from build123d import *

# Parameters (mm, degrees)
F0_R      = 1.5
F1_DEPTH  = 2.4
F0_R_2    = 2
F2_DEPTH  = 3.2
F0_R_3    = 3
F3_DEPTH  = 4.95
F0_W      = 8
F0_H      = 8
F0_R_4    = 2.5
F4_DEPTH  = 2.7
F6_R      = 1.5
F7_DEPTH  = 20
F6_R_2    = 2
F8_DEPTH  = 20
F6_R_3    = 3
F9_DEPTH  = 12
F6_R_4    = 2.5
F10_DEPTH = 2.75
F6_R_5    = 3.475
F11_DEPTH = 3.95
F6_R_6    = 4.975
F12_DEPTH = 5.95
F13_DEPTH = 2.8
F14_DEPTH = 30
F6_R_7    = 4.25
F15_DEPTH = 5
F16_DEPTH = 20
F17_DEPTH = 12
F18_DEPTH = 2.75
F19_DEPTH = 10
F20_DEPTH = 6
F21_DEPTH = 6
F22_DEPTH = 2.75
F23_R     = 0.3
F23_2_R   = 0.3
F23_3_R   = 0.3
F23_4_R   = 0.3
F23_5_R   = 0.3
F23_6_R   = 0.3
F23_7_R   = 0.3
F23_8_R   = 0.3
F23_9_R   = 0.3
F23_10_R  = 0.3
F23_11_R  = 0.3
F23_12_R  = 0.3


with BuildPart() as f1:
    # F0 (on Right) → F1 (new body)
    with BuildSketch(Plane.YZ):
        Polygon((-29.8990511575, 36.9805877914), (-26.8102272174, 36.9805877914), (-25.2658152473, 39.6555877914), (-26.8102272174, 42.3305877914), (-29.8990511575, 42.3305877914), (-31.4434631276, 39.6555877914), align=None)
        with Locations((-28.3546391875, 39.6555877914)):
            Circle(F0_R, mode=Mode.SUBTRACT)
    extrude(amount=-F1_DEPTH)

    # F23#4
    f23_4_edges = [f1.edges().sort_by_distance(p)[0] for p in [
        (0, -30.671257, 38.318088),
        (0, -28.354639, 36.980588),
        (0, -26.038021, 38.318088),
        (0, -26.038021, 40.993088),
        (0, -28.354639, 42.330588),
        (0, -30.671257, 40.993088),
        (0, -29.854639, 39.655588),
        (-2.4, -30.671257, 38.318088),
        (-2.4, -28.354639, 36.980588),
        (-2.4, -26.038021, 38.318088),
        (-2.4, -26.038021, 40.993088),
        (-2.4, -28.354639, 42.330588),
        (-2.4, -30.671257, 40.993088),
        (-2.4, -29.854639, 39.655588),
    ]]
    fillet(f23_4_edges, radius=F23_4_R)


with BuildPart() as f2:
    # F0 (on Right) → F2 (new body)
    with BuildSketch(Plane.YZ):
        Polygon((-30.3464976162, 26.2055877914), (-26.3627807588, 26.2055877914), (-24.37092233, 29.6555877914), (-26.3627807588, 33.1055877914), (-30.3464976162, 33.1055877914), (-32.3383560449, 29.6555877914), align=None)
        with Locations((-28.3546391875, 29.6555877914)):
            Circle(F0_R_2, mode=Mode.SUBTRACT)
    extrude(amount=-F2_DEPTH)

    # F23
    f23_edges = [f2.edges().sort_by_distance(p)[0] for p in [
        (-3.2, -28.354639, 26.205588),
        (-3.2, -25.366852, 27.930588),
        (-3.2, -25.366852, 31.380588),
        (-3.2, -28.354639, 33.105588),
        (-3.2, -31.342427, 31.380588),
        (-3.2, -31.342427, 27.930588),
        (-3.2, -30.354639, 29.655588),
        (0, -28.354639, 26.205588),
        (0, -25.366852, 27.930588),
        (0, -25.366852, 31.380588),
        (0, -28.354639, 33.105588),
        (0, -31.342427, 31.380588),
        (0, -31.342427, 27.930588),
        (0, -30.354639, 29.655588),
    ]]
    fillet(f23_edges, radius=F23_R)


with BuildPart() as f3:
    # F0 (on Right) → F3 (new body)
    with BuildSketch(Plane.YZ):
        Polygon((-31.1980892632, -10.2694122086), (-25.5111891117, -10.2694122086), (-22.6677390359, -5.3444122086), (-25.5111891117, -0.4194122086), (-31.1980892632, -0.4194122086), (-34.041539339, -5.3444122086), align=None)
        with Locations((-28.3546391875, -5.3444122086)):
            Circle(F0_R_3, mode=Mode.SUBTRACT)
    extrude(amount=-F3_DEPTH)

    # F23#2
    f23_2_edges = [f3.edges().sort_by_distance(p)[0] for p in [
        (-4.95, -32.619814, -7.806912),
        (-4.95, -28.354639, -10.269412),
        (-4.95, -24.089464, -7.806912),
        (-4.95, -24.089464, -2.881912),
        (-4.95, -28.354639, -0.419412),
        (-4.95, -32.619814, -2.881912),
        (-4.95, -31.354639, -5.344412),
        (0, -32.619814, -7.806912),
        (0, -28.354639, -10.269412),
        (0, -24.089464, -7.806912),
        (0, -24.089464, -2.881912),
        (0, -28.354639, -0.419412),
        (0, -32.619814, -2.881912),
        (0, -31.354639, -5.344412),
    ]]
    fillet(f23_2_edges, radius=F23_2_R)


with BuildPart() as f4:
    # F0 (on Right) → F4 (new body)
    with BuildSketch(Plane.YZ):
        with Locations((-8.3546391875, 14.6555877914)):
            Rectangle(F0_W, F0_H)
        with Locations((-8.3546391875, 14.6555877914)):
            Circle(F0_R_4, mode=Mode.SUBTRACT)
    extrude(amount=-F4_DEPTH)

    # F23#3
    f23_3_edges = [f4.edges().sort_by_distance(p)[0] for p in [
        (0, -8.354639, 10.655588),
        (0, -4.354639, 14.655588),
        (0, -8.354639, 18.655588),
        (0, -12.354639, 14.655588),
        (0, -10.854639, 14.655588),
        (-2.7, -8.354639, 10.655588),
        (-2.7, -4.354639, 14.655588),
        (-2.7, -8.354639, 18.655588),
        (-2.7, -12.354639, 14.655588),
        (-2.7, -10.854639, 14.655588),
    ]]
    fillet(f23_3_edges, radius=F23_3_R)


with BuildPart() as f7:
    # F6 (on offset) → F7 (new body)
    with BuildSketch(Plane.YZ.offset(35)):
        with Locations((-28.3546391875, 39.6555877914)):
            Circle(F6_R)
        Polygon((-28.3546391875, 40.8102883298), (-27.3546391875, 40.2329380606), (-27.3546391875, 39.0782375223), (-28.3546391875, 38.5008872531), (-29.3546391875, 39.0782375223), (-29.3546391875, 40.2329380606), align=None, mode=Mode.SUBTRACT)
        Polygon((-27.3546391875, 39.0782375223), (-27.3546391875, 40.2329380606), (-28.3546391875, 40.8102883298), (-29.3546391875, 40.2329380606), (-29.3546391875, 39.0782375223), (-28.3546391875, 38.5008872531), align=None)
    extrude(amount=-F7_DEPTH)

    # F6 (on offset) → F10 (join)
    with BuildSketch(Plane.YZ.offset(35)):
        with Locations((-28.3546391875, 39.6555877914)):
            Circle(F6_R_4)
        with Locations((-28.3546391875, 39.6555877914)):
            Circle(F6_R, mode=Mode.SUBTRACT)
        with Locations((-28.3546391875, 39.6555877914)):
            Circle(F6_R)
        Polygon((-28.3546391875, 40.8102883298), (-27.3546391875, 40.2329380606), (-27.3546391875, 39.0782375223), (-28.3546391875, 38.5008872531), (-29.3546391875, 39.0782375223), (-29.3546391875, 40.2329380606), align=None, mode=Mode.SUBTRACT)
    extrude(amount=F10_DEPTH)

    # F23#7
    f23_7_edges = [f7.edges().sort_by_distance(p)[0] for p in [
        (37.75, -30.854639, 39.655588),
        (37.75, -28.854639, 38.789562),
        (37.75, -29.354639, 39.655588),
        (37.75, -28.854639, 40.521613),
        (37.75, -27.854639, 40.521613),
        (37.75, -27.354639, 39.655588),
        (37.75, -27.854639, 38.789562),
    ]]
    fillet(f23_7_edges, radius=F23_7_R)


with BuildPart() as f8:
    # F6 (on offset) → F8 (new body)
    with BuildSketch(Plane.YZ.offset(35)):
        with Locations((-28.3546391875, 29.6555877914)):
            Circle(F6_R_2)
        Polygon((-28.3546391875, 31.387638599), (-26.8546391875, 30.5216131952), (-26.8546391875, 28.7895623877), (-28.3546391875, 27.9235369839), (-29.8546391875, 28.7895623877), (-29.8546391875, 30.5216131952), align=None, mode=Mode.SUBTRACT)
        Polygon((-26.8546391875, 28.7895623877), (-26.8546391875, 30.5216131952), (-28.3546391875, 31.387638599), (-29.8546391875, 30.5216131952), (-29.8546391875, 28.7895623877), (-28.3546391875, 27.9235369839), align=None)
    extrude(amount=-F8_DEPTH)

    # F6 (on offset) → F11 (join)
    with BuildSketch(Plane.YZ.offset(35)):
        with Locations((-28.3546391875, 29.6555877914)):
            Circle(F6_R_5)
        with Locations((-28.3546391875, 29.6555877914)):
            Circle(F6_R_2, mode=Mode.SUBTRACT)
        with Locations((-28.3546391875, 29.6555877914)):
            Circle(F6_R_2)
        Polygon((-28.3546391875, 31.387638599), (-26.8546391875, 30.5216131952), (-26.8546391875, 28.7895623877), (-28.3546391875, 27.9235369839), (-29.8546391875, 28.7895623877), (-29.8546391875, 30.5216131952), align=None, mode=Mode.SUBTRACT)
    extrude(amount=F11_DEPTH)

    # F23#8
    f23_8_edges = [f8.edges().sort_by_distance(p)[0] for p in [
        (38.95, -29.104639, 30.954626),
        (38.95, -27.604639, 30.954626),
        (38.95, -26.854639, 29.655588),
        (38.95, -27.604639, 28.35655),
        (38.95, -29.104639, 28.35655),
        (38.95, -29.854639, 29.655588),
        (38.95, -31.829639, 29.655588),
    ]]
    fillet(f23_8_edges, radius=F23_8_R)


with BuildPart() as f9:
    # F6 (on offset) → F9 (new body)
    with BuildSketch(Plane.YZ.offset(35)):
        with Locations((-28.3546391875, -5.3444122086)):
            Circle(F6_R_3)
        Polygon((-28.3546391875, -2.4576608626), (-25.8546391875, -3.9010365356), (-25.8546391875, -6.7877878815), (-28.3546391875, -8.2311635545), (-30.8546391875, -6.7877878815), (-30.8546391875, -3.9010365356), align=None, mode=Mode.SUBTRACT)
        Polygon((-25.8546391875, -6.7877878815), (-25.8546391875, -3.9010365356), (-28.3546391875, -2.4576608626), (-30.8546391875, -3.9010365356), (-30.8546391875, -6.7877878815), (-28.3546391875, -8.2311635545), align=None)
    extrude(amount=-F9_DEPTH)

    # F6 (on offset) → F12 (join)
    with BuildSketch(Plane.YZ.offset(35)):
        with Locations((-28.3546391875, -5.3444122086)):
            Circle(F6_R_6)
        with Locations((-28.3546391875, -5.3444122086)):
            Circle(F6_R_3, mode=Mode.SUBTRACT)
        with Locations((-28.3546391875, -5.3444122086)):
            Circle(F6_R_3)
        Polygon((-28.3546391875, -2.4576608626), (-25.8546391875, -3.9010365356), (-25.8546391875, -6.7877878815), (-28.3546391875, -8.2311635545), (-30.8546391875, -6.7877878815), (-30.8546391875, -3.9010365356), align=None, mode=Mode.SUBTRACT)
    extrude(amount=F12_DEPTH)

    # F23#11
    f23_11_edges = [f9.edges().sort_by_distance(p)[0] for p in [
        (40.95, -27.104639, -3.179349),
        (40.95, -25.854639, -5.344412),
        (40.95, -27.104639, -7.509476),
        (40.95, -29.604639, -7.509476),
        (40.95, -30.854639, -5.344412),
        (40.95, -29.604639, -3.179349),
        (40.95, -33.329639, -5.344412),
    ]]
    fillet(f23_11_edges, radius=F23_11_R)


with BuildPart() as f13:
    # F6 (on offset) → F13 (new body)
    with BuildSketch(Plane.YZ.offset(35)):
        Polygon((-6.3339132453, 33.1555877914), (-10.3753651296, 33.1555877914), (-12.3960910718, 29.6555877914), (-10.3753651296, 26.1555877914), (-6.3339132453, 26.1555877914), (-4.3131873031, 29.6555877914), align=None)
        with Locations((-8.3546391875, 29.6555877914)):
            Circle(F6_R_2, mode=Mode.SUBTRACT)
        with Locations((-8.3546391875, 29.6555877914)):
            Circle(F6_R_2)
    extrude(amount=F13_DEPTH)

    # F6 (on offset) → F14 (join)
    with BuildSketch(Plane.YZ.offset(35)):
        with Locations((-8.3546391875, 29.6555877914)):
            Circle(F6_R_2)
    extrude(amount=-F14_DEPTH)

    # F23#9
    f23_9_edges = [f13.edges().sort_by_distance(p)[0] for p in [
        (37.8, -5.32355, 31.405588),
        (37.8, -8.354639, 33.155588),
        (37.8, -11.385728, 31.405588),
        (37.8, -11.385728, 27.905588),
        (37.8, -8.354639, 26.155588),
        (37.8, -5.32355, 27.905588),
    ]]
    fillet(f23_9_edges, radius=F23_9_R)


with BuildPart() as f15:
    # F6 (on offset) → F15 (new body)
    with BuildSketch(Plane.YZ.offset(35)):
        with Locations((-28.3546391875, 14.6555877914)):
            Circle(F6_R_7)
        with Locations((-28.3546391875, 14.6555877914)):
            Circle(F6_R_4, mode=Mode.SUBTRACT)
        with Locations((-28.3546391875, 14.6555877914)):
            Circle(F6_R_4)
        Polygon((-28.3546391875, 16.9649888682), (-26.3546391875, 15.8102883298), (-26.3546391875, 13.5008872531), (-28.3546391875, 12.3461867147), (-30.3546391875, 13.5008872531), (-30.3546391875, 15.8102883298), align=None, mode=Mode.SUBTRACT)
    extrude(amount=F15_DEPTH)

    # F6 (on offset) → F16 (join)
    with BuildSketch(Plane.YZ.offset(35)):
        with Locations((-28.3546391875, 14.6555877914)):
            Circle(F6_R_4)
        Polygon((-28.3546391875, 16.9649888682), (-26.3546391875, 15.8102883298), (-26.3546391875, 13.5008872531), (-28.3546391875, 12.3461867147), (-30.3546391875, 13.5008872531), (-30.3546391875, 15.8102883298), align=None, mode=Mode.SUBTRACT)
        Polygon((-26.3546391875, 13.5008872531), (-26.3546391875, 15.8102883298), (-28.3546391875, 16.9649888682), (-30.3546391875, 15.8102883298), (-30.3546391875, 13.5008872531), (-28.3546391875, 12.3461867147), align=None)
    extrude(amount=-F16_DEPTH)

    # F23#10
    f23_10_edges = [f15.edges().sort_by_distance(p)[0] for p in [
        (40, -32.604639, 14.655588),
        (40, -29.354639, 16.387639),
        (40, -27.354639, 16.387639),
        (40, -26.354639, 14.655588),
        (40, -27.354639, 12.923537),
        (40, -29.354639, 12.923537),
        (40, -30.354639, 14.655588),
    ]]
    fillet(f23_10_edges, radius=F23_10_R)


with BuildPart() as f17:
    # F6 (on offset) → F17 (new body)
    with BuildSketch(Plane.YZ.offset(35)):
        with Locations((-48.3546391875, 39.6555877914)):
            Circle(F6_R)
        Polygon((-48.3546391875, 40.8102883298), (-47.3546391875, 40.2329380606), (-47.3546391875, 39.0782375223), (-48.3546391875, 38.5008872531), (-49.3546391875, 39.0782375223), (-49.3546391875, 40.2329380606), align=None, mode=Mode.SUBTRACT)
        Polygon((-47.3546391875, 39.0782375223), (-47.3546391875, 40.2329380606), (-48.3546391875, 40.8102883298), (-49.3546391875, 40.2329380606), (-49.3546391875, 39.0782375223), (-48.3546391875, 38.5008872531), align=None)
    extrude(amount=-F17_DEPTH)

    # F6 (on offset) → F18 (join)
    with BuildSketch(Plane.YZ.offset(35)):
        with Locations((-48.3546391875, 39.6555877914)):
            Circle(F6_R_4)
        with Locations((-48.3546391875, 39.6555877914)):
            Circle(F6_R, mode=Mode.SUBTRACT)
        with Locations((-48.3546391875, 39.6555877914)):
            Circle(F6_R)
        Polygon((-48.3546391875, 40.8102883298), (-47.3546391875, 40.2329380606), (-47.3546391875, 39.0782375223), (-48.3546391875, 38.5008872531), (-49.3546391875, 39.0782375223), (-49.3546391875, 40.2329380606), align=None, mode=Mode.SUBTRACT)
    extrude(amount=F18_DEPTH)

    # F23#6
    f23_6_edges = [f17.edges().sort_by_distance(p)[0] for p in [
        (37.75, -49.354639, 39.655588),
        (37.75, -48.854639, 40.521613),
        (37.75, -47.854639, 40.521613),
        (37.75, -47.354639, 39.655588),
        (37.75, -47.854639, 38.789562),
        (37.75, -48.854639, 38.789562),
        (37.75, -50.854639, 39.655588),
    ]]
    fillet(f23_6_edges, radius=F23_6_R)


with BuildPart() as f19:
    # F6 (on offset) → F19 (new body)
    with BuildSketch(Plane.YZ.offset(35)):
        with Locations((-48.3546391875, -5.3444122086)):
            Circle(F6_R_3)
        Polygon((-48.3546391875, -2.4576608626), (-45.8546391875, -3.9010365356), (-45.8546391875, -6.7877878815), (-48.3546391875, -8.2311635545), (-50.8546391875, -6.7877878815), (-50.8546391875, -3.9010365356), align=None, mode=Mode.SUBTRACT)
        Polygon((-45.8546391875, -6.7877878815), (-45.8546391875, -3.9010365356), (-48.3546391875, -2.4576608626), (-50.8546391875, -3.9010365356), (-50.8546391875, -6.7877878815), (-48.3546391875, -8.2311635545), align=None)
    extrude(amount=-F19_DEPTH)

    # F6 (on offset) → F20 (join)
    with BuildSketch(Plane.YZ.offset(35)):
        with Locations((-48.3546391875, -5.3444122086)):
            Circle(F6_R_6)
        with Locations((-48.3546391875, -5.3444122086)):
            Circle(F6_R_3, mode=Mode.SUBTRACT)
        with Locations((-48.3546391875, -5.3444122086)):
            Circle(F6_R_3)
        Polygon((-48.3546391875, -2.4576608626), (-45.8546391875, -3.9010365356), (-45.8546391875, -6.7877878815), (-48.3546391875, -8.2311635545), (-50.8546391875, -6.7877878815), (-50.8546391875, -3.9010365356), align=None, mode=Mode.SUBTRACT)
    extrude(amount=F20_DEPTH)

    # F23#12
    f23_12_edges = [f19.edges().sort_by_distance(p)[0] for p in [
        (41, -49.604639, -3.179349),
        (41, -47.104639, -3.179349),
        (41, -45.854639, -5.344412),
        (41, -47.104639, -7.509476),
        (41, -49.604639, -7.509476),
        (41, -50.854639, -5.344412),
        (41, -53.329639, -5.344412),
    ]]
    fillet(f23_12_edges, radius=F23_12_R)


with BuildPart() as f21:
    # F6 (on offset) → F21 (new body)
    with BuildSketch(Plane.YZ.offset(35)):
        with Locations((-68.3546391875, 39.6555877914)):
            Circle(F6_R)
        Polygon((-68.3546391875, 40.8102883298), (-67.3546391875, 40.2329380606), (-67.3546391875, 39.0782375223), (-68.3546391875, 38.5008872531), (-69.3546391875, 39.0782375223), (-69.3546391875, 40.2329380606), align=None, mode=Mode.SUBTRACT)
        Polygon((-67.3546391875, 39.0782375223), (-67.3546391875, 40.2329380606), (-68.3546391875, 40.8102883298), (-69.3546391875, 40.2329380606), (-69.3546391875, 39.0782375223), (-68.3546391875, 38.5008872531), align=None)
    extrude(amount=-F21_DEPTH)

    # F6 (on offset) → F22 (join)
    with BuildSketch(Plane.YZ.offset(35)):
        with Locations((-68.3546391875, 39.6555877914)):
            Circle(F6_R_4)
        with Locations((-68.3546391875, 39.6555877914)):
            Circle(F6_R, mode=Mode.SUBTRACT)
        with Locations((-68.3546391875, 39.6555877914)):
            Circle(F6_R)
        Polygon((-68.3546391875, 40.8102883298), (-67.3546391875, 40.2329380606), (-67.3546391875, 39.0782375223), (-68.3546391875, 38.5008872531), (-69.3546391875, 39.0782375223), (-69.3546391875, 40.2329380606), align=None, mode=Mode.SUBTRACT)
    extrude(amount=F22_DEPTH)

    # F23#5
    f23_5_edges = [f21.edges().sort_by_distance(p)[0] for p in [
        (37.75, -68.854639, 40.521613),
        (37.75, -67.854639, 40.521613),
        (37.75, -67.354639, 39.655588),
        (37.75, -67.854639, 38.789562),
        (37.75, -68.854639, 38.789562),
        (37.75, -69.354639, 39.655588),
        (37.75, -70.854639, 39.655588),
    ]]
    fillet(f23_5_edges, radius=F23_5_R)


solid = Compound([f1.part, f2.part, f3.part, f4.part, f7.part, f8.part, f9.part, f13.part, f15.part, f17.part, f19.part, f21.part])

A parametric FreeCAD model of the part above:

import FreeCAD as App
import Part
import Sketcher

V = App.Vector
Q = App.Units.Quantity


def edges_at(feature, points):
    """Names of the edges that pass closest to the given points."""
    edges = feature.Shape.Edges
    near = lambda p: min(range(len(edges)), key=lambda i: edges[i].distToShape(Part.Vertex(*p))[0])
    return sorted({f"Edge{near(p) + 1}" for p in points})

doc = App.newDocument("Part")
body = doc.addObject("PartDesign::Body", "Body")

sketch1 = body.newObject("Sketcher::SketchObject", "Sketch")
sketch1.AttachmentSupport = (doc.getObject("YZ_Plane"), [""])
sketch1.MapMode = "FlatFace"
sketch1.addGeometry([
    Part.LineSegment(V(-29.9, 37, 0), V(-26.8, 37, 0)),
    Part.LineSegment(V(-26.8, 37, 0), V(-25.3, 39.7, 0)),
    Part.LineSegment(V(-25.3, 39.7, 0), V(-26.8, 42.3, 0)),
    Part.LineSegment(V(-26.8, 42.3, 0), V(-29.9, 42.3, 0)),
    Part.LineSegment(V(-29.9, 42.3, 0), V(-31.4, 39.7, 0)),
    Part.LineSegment(V(-31.4, 39.7, 0), V(-29.9, 37, 0)),
    Part.Circle(V(-28.4, 39.7, 0), V(0, 0, 1), 1.5),
], False)
sketch1.addConstraint([
    Sketcher.Constraint("Coincident", 0, 2, 1, 1),
    Sketcher.Constraint("Coincident", 1, 2, 2, 1),
    Sketcher.Constraint("Coincident", 2, 2, 3, 1),
    Sketcher.Constraint("Coincident", 3, 2, 4, 1),
    Sketcher.Constraint("Coincident", 4, 2, 5, 1),
    Sketcher.Constraint("Coincident", 5, 2, 0, 1),
    Sketcher.Constraint("Horizontal", 0),
    Sketcher.Constraint("Horizontal", 3),
    Sketcher.Constraint("Parallel", 1, 4),
    Sketcher.Constraint("Parallel", 2, 5),
    Sketcher.Constraint("Horizontal", 6, 3, 1, 2),
    Sketcher.Constraint("Horizontal", 1, 2, 4, 2),
    Sketcher.Constraint("Vertical", 0, 2, 2, 2),
    Sketcher.Constraint("Vertical", 3, 2, 5, 2),
    Sketcher.Constraint("Diameter", 6, Q("3 mm")),
    Sketcher.Constraint("Angle", 1, Q("60 deg")),
    Sketcher.Constraint("DistanceY", 0, 2, 2, 2, Q("5.35 mm")),
    Sketcher.Constraint("DistanceX", 0, 1, 0, 2, Q("3.088824 mm")),
    Sketcher.Constraint("DistanceX", 6, 3, -1, 1, Q("28.354639 mm")),
    Sketcher.Constraint("DistanceX", 3, 2, -1, 1, Q("29.899051 mm")),
    Sketcher.Constraint("DistanceY", -1, 1, 6, 3, Q("39.655588 mm")),
])
pad1 = body.newObject("PartDesign::Pad", "Pad")
pad1.Profile = sketch1
pad1.Length = 2.4
pad1.Reversed = True
doc.recompute()

fillet = body.newObject("PartDesign::Fillet", "Fillet")
fillet.Base = (pad1, edges_at(pad1, [
    (0, -30.671, 38.318),
    (0, -28.355, 36.981),
    (0, -26.038, 38.318),
    (0, -26.038, 40.993),
    (0, -28.355, 42.331),
    (0, -30.671, 40.993),
    (0, -29.855, 39.656),
    (-2.4, -30.671, 38.318),
    (-2.4, -28.355, 36.981),
    (-2.4, -26.038, 38.318),
    (-2.4, -26.038, 40.993),
    (-2.4, -28.355, 42.331),
    (-2.4, -30.671, 40.993),
    (-2.4, -29.855, 39.656),
]))
fillet.Radius = 0.3
body2 = doc.addObject("PartDesign::Body", "Body001")

sketch2 = body2.newObject("Sketcher::SketchObject", "Sketch001")
sketch2.AttachmentSupport = (doc.getObject("YZ_Plane001"), [""])
sketch2.MapMode = "FlatFace"
sketch2.addGeometry([
    Part.LineSegment(V(-30.3, 26.2, 0), V(-26.4, 26.2, 0)),
    Part.LineSegment(V(-26.4, 26.2, 0), V(-24.4, 29.7, 0)),
    Part.LineSegment(V(-24.4, 29.7, 0), V(-26.4, 33.1, 0)),
    Part.LineSegment(V(-26.4, 33.1, 0), V(-30.3, 33.1, 0)),
    Part.LineSegment(V(-30.3, 33.1, 0), V(-32.3, 29.7, 0)),
    Part.LineSegment(V(-32.3, 29.7, 0), V(-30.3, 26.2, 0)),
    Part.Circle(V(-28.4, 29.7, 0), V(0, 0, 1), 2),
], False)
sketch2.addConstraint([
    Sketcher.Constraint("Coincident", 0, 2, 1, 1),
    Sketcher.Constraint("Coincident", 1, 2, 2, 1),
    Sketcher.Constraint("Coincident", 2, 2, 3, 1),
    Sketcher.Constraint("Coincident", 3, 2, 4, 1),
    Sketcher.Constraint("Coincident", 4, 2, 5, 1),
    Sketcher.Constraint("Coincident", 5, 2, 0, 1),
    Sketcher.Constraint("Horizontal", 0),
    Sketcher.Constraint("Horizontal", 3),
    Sketcher.Constraint("Parallel", 1, 4),
    Sketcher.Constraint("Parallel", 2, 5),
    Sketcher.Constraint("Horizontal", 6, 3, 1, 2),
    Sketcher.Constraint("Horizontal", 1, 2, 4, 2),
    Sketcher.Constraint("Vertical", 0, 2, 2, 2),
    Sketcher.Constraint("Vertical", 3, 2, 5, 2),
    Sketcher.Constraint("Diameter", 6, Q("4 mm")),
    Sketcher.Constraint("Angle", 1, Q("60 deg")),
    Sketcher.Constraint("DistanceY", 0, 2, 2, 2, Q("6.9 mm")),
    Sketcher.Constraint("DistanceX", 0, 1, 0, 2, Q("3.983717 mm")),
    Sketcher.Constraint("DistanceX", 6, 3, -1, 1, Q("28.354639 mm")),
    Sketcher.Constraint("DistanceX", 0, 2, -1, 1, Q("26.362781 mm")),
    Sketcher.Constraint("DistanceY", -1, 1, 6, 3, Q("29.655588 mm")),
])
pad2 = body2.newObject("PartDesign::Pad", "Pad001")
pad2.Profile = sketch2
pad2.Length = 3.2
pad2.Reversed = True
doc.recompute()

fillet2 = body2.newObject("PartDesign::Fillet", "Fillet001")
fillet2.Base = (pad2, edges_at(pad2, [
    (-3.2, -28.355, 26.206),
    (-3.2, -25.367, 27.931),
    (-3.2, -25.367, 31.381),
    (-3.2, -28.355, 33.106),
    (-3.2, -31.342, 31.381),
    (-3.2, -31.342, 27.931),
    (-3.2, -30.355, 29.656),
    (0, -28.355, 26.206),
    (0, -25.367, 27.931),
    (0, -25.367, 31.381),
    (0, -28.355, 33.106),
    (0, -31.342, 31.381),
    (0, -31.342, 27.931),
    (0, -30.355, 29.656),
]))
fillet2.Radius = 0.3
body3 = doc.addObject("PartDesign::Body", "Body002")

sketch3 = body3.newObject("Sketcher::SketchObject", "Sketch002")
sketch3.AttachmentSupport = (doc.getObject("YZ_Plane002"), [""])
sketch3.MapMode = "FlatFace"
sketch3.addGeometry([
    Part.LineSegment(V(-31.2, -10.3, 0), V(-25.5, -10.3, 0)),
    Part.LineSegment(V(-25.5, -10.3, 0), V(-22.7, -5.3, 0)),
    Part.LineSegment(V(-22.7, -5.3, 0), V(-25.5, -0.4, 0)),
    Part.LineSegment(V(-25.5, -0.4, 0), V(-31.2, -0.4, 0)),
    Part.LineSegment(V(-31.2, -0.4, 0), V(-34, -5.3, 0)),
    Part.LineSegment(V(-34, -5.3, 0), V(-31.2, -10.3, 0)),
    Part.Circle(V(-28.4, -5.3, 0), V(0, 0, 1), 3),
], False)
sketch3.addConstraint([
    Sketcher.Constraint("Coincident", 0, 2, 1, 1),
    Sketcher.Constraint("Coincident", 1, 2, 2, 1),
    Sketcher.Constraint("Coincident", 2, 2, 3, 1),
    Sketcher.Constraint("Coincident", 3, 2, 4, 1),
    Sketcher.Constraint("Coincident", 4, 2, 5, 1),
    Sketcher.Constraint("Coincident", 5, 2, 0, 1),
    Sketcher.Constraint("Horizontal", 0),
    Sketcher.Constraint("Horizontal", 3),
    Sketcher.Constraint("Parallel", 1, 4),
    Sketcher.Constraint("Parallel", 2, 5),
    Sketcher.Constraint("Horizontal", 6, 3, 1, 2),
    Sketcher.Constraint("Horizontal", 1, 2, 4, 2),
    Sketcher.Constraint("Vertical", 0, 2, 2, 2),
    Sketcher.Constraint("Vertical", 3, 2, 5, 2),
    Sketcher.Constraint("Diameter", 6, Q("6 mm")),
    Sketcher.Constraint("Angle", 1, Q("60 deg")),
    Sketcher.Constraint("DistanceY", 0, 2, 2, 2, Q("9.85 mm")),
    Sketcher.Constraint("DistanceX", 0, 1, 0, 2, Q("5.6869 mm")),
    Sketcher.Constraint("DistanceX", 6, 3, 1, 2, Q("5.6869 mm")),
    Sketcher.Constraint("DistanceX", 6, 3, -1, 1, Q("28.354639 mm")),
    Sketcher.Constraint("DistanceY", 6, 3, -1, 1, Q("5.344412 mm")),
])
pad3 = body3.newObject("PartDesign::Pad", "Pad002")
pad3.Profile = sketch3
pad3.Length = 4.95
pad3.Reversed = True
doc.recompute()

fillet3 = body3.newObject("PartDesign::Fillet", "Fillet002")
fillet3.Base = (pad3, edges_at(pad3, [
    (-4.95, -32.62, -7.807),
    (-4.95, -28.355, -10.269),
    (-4.95, -24.089, -7.807),
    (-4.95, -24.089, -2.882),
    (-4.95, -28.355, -0.419),
    (-4.95, -32.62, -2.882),
    (-4.95, -31.355, -5.344),
    (0, -32.62, -7.807),
    (0, -28.355, -10.269),
    (0, -24.089, -7.807),
    (0, -24.089, -2.882),
    (0, -28.355, -0.419),
    (0, -32.62, -2.882),
    (0, -31.355, -5.344),
]))
fillet3.Radius = 0.3
body4 = doc.addObject("PartDesign::Body", "Body003")

sketch4 = body4.newObject("Sketcher::SketchObject", "Sketch003")
sketch4.AttachmentSupport = (doc.getObject("YZ_Plane003"), [""])
sketch4.MapMode = "FlatFace"
sketch4.addGeometry([
    Part.LineSegment(V(-12.4, 18.7, 0), V(-12.4, 10.7, 0)),
    Part.LineSegment(V(-12.4, 10.7, 0), V(-4.4, 10.7, 0)),
    Part.LineSegment(V(-4.4, 10.7, 0), V(-4.4, 18.7, 0)),
    Part.LineSegment(V(-4.4, 18.7, 0), V(-12.4, 18.7, 0)),
    Part.Circle(V(-8.4, 14.7, 0), V(0, 0, 1), 2.5),
], False)
sketch4.addConstraint([
    Sketcher.Constraint("Coincident", 0, 2, 1, 1),
    Sketcher.Constraint("Coincident", 1, 2, 2, 1),
    Sketcher.Constraint("Coincident", 2, 2, 3, 1),
    Sketcher.Constraint("Coincident", 3, 2, 0, 1),
    Sketcher.Constraint("Vertical", 0),
    Sketcher.Constraint("Horizontal", 1),
    Sketcher.Constraint("Vertical", 2),
    Sketcher.Constraint("Horizontal", 3),
    Sketcher.Constraint("Equal", 3, 0),
    Sketcher.Constraint("Diameter", 4, Q("5 mm")),
    Sketcher.Constraint("DistanceX", 1, 1, 1, 2, Q("8 mm")),
    Sketcher.Constraint("DistanceX", 0, 2, 4, 3, Q("4 mm")),
    Sketcher.Constraint("DistanceY", 0, 2, 4, 3, Q("4 mm")),
    Sketcher.Constraint("DistanceX", 4, 3, -1, 1, Q("8.354639 mm")),
    Sketcher.Constraint("DistanceY", -1, 1, 4, 3, Q("14.655588 mm")),
])
pad4 = body4.newObject("PartDesign::Pad", "Pad003")
pad4.Profile = sketch4
pad4.Length = 2.7
pad4.Reversed = True
doc.recompute()

fillet4 = body4.newObject("PartDesign::Fillet", "Fillet003")
fillet4.Base = (pad4, edges_at(pad4, [
    (0, -8.355, 10.656),
    (0, -4.355, 14.656),
    (0, -8.355, 18.656),
    (0, -12.355, 14.656),
    (0, -10.855, 14.656),
    (-2.7, -8.355, 10.656),
    (-2.7, -4.355, 14.656),
    (-2.7, -8.355, 18.656),
    (-2.7, -12.355, 14.656),
    (-2.7, -10.855, 14.656),
]))
fillet4.Radius = 0.3
body5 = doc.addObject("PartDesign::Body", "Body004")

sketch5 = body5.newObject("Sketcher::SketchObject", "Sketch004")
sketch5.AttachmentSupport = (doc.getObject("YZ_Plane004"), [""])
sketch5.MapMode = "FlatFace"
sketch5.AttachmentOffset = App.Placement(V(0, 0, 35), App.Rotation())
sketch5.addGeometry(Part.Circle(V(-28.4, 39.7, 0), V(0, 0, 1), 1.5), False)
sketch5.addConstraint([
    Sketcher.Constraint("Diameter", 0, Q("3 mm")),
    Sketcher.Constraint("DistanceX", 0, 3, -1, 1, Q("28.354639 mm")),
    Sketcher.Constraint("DistanceY", -1, 1, 0, 3, Q("39.655588 mm")),
])
pad5 = body5.newObject("PartDesign::Pad", "Pad004")
pad5.Profile = sketch5
pad5.Length = 20
pad5.Reversed = True

sketch6 = body5.newObject("Sketcher::SketchObject", "Sketch005")
sketch6.AttachmentSupport = (doc.getObject("YZ_Plane004"), [""])
sketch6.MapMode = "FlatFace"
sketch6.AttachmentOffset = App.Placement(V(0, 0, 35), App.Rotation())
sketch6.addGeometry([
    Part.Circle(V(-28.4, 39.7, 0), V(0, 0, 1), 2.5),
    Part.LineSegment(V(-29.4, 40.2, 0), V(-28.4, 40.8, 0)),
    Part.LineSegment(V(-28.4, 40.8, 0), V(-27.4, 40.2, 0)),
    Part.LineSegment(V(-27.4, 40.2, 0), V(-27.4, 39.1, 0)),
    Part.LineSegment(V(-27.4, 39.1, 0), V(-28.4, 38.5, 0)),
    Part.LineSegment(V(-28.4, 38.5, 0), V(-29.4, 39.1, 0)),
    Part.LineSegment(V(-29.4, 39.1, 0), V(-29.4, 40.2, 0)),
], False)
sketch6.addConstraint([
    Sketcher.Constraint("Coincident", 1, 2, 2, 1),
    Sketcher.Constraint("Coincident", 2, 2, 3, 1),
    Sketcher.Constraint("Coincident", 3, 2, 4, 1),
    Sketcher.Constraint("Coincident", 4, 2, 5, 1),
    Sketcher.Constraint("Coincident", 5, 2, 6, 1),
    Sketcher.Constraint("Coincident", 6, 2, 1, 1),
    Sketcher.Constraint("Vertical", 3),
    Sketcher.Constraint("Vertical", 6),
    Sketcher.Constraint("Parallel", 1, 4),
    Sketcher.Constraint("Parallel", 2, 5),
    Sketcher.Constraint("Horizontal", 3, 2, 5, 2),
    Sketcher.Constraint("Horizontal", 2, 2, 6, 2),
    Sketcher.Constraint("Vertical", 0, 3, 1, 2),
    Sketcher.Constraint("Vertical", 1, 2, 4, 2),
    Sketcher.Constraint("Diameter", 0, Q("5 mm")),
    Sketcher.Constraint("Angle", 1, Q("30 deg")),
    Sketcher.Constraint("DistanceX", 1, 2, 2, 2, Q("1 mm")),
    Sketcher.Constraint("DistanceY", 3, 2, 3, 1, Q("1.154701 mm")),
    Sketcher.Constraint("DistanceY", 0, 3, 1, 2, Q("1.154701 mm")),
    Sketcher.Constraint("DistanceX", 0, 3, -1, 1, Q("28.354639 mm")),
    Sketcher.Constraint("DistanceY", -1, 1, 1, 2, Q("40.810288 mm")),
])
pad6 = body5.newObject("PartDesign::Pad", "Pad005")
pad6.Profile = sketch6
pad6.Length = 2.75
doc.recompute()

fillet5 = body5.newObject("PartDesign::Fillet", "Fillet004")
fillet5.Base = (pad6, edges_at(pad6, [
    (37.75, -30.855, 39.656),
    (37.75, -28.855, 38.79),
    (37.75, -29.355, 39.656),
    (37.75, -28.855, 40.522),
    (37.75, -27.855, 40.522),
    (37.75, -27.355, 39.656),
    (37.75, -27.855, 38.79),
]))
fillet5.Radius = 0.3
body6 = doc.addObject("PartDesign::Body", "Body005")

sketch7 = body6.newObject("Sketcher::SketchObject", "Sketch006")
sketch7.AttachmentSupport = (doc.getObject("YZ_Plane005"), [""])
sketch7.MapMode = "FlatFace"
sketch7.AttachmentOffset = App.Placement(V(0, 0, 35), App.Rotation())
sketch7.addGeometry(Part.Circle(V(-28.4, 29.7, 0), V(0, 0, 1), 2), False)
sketch7.addConstraint([
    Sketcher.Constraint("Diameter", 0, Q("4 mm")),
    Sketcher.Constraint("DistanceX", 0, 3, -1, 1, Q("28.354639 mm")),
    Sketcher.Constraint("DistanceY", -1, 1, 0, 3, Q("29.655588 mm")),
])
pad7 = body6.newObject("PartDesign::Pad", "Pad006")
pad7.Profile = sketch7
pad7.Length = 20
pad7.Reversed = True

sketch8 = body6.newObject("Sketcher::SketchObject", "Sketch007")
sketch8.AttachmentSupport = (doc.getObject("YZ_Plane005"), [""])
sketch8.MapMode = "FlatFace"
sketch8.AttachmentOffset = App.Placement(V(0, 0, 35), App.Rotation())
sketch8.addGeometry([
    Part.Circle(V(-28.4, 29.7, 0), V(0, 0, 1), 3.5),
    Part.LineSegment(V(-29.9, 30.5, 0), V(-28.4, 31.4, 0)),
    Part.LineSegment(V(-28.4, 31.4, 0), V(-26.9, 30.5, 0)),
    Part.LineSegment(V(-26.9, 30.5, 0), V(-26.9, 28.8, 0)),
    Part.LineSegment(V(-26.9, 28.8, 0), V(-28.4, 27.9, 0)),
    Part.LineSegment(V(-28.4, 27.9, 0), V(-29.9, 28.8, 0)),
    Part.LineSegment(V(-29.9, 28.8, 0), V(-29.9, 30.5, 0)),
], False)
sketch8.addConstraint([
    Sketcher.Constraint("Coincident", 1, 2, 2, 1),
    Sketcher.Constraint("Coincident", 2, 2, 3, 1),
    Sketcher.Constraint("Coincident", 3, 2, 4, 1),
    Sketcher.Constraint("Coincident", 4, 2, 5, 1),
    Sketcher.Constraint("Coincident", 5, 2, 6, 1),
    Sketcher.Constraint("Coincident", 6, 2, 1, 1),
    Sketcher.Constraint("Vertical", 3),
    Sketcher.Constraint("Vertical", 6),
    Sketcher.Constraint("Parallel", 1, 4),
    Sketcher.Constraint("Parallel", 2, 5),
    Sketcher.Constraint("Horizontal", 3, 2, 5, 2),
    Sketcher.Constraint("Horizontal", 2, 2, 6, 2),
    Sketcher.Constraint("Vertical", 0, 3, 1, 2),
    Sketcher.Constraint("Vertical", 1, 2, 4, 2),
    Sketcher.Constraint("Diameter", 0, Q("6.95 mm")),
    Sketcher.Constraint("Angle", 1, Q("30 deg")),
    Sketcher.Constraint("DistanceX", 5, 2, 3, 2, Q("3 mm")),
    Sketcher.Constraint("DistanceY", 3, 2, 3, 1, Q("1.732051 mm")),
    Sketcher.Constraint("DistanceX", 0, 3, -1, 1, Q("28.354639 mm")),
    Sketcher.Constraint("DistanceY", -1, 1, 1, 2, Q("31.387639 mm")),
    Sketcher.Constraint("DistanceY", 0, 3, 1, 2, Q("1.732051 mm")),
])
pad8 = body6.newObject("PartDesign::Pad", "Pad007")
pad8.Profile = sketch8
pad8.Length = 3.95
doc.recompute()

fillet6 = body6.newObject("PartDesign::Fillet", "Fillet005")
fillet6.Base = (pad8, edges_at(pad8, [
    (38.95, -29.105, 30.955),
    (38.95, -27.605, 30.955),
    (38.95, -26.855, 29.656),
    (38.95, -27.605, 28.357),
    (38.95, -29.105, 28.357),
    (38.95, -29.855, 29.656),
    (38.95, -31.83, 29.656),
]))
fillet6.Radius = 0.3
body7 = doc.addObject("PartDesign::Body", "Body006")

sketch9 = body7.newObject("Sketcher::SketchObject", "Sketch008")
sketch9.AttachmentSupport = (doc.getObject("YZ_Plane006"), [""])
sketch9.MapMode = "FlatFace"
sketch9.AttachmentOffset = App.Placement(V(0, 0, 35), App.Rotation())
sketch9.addGeometry(Part.Circle(V(-28.4, -5.3, 0), V(0, 0, 1), 3), False)
sketch9.addConstraint([
    Sketcher.Constraint("Diameter", 0, Q("6 mm")),
    Sketcher.Constraint("DistanceX", 0, 3, -1, 1, Q("28.354639 mm")),
    Sketcher.Constraint("DistanceY", 0, 3, -1, 1, Q("5.344412 mm")),
])
pad9 = body7.newObject("PartDesign::Pad", "Pad008")
pad9.Profile = sketch9
pad9.Length = 12
pad9.Reversed = True

sketch10 = body7.newObject("Sketcher::SketchObject", "Sketch009")
sketch10.AttachmentSupport = (doc.getObject("YZ_Plane006"), [""])
sketch10.MapMode = "FlatFace"
sketch10.AttachmentOffset = App.Placement(V(0, 0, 35), App.Rotation())
sketch10.addGeometry([
    Part.Circle(V(-28.4, -5.3, 0), V(0, 0, 1), 5),
    Part.LineSegment(V(-30.9, -3.9, 0), V(-28.4, -2.5, 0)),
    Part.LineSegment(V(-28.4, -2.5, 0), V(-25.9, -3.9, 0)),
    Part.LineSegment(V(-25.9, -3.9, 0), V(-25.9, -6.8, 0)),
    Part.LineSegment(V(-25.9, -6.8, 0), V(-28.4, -8.2, 0)),
    Part.LineSegment(V(-28.4, -8.2, 0), V(-30.9, -6.8, 0)),
    Part.LineSegment(V(-30.9, -6.8, 0), V(-30.9, -3.9, 0)),
], False)
sketch10.addConstraint([
    Sketcher.Constraint("Coincident", 1, 2, 2, 1),
    Sketcher.Constraint("Coincident", 2, 2, 3, 1),
    Sketcher.Constraint("Coincident", 3, 2, 4, 1),
    Sketcher.Constraint("Coincident", 4, 2, 5, 1),
    Sketcher.Constraint("Coincident", 5, 2, 6, 1),
    Sketcher.Constraint("Coincident", 6, 2, 1, 1),
    Sketcher.Constraint("Vertical", 3),
    Sketcher.Constraint("Vertical", 6),
    Sketcher.Constraint("Parallel", 1, 4),
    Sketcher.Constraint("Parallel", 2, 5),
    Sketcher.Constraint("Horizontal", 3, 2, 5, 2),
    Sketcher.Constraint("Horizontal", 2, 2, 6, 2),
    Sketcher.Constraint("Vertical", 0, 3, 1, 2),
    Sketcher.Constraint("Vertical", 1, 2, 4, 2),
    Sketcher.Constraint("Diameter", 0, Q("9.95 mm")),
    Sketcher.Constraint("Angle", 1, Q("30 deg")),
    Sketcher.Constraint("DistanceX", 5, 2, 3, 2, Q("5 mm")),
    Sketcher.Constraint("DistanceY", 3, 2, 3, 1, Q("2.886751 mm")),
    Sketcher.Constraint("DistanceX", 0, 3, -1, 1, Q("28.354639 mm")),
    Sketcher.Constraint("DistanceY", 1, 2, -1, 1, Q("2.457661 mm")),
    Sketcher.Constraint("DistanceY", 0, 3, 1, 2, Q("2.886751 mm")),
])
pad10 = body7.newObject("PartDesign::Pad", "Pad009")
pad10.Profile = sketch10
pad10.Length = 5.95
doc.recompute()

fillet7 = body7.newObject("PartDesign::Fillet", "Fillet006")
fillet7.Base = (pad10, edges_at(pad10, [
    (40.95, -27.105, -3.179),
    (40.95, -25.855, -5.344),
    (40.95, -27.105, -7.509),
    (40.95, -29.605, -7.509),
    (40.95, -30.855, -5.344),
    (40.95, -29.605, -3.179),
    (40.95, -33.33, -5.344),
]))
fillet7.Radius = 0.3
body8 = doc.addObject("PartDesign::Body", "Body007")

sketch11 = body8.newObject("Sketcher::SketchObject", "Sketch010")
sketch11.AttachmentSupport = (doc.getObject("YZ_Plane007"), [""])
sketch11.MapMode = "FlatFace"
sketch11.AttachmentOffset = App.Placement(V(0, 0, 35), App.Rotation())
sketch11.addGeometry([
    Part.LineSegment(V(-6.3, 33.2, 0), V(-10.4, 33.2, 0)),
    Part.LineSegment(V(-10.4, 33.2, 0), V(-12.4, 29.7, 0)),
    Part.LineSegment(V(-12.4, 29.7, 0), V(-10.4, 26.2, 0)),
    Part.LineSegment(V(-10.4, 26.2, 0), V(-6.3, 26.2, 0)),
    Part.LineSegment(V(-6.3, 26.2, 0), V(-4.3, 29.7, 0)),
    Part.LineSegment(V(-4.3, 29.7, 0), V(-6.3, 33.2, 0)),
], False)
sketch11.addConstraint([
    Sketcher.Constraint("Coincident", 0, 2, 1, 1),
    Sketcher.Constraint("Coincident", 1, 2, 2, 1),
    Sketcher.Constraint("Coincident", 2, 2, 3, 1),
    Sketcher.Constraint("Coincident", 3, 2, 4, 1),
    Sketcher.Constraint("Coincident", 4, 2, 5, 1),
    Sketcher.Constraint("Coincident", 5, 2, 0, 1),
    Sketcher.Constraint("Horizontal", 0),
    Sketcher.Constraint("Horizontal", 3),
    Sketcher.Constraint("Parallel", 1, 4),
    Sketcher.Constraint("Parallel", 2, 5),
    Sketcher.Constraint("Horizontal", 1, 2, 4, 2),
    Sketcher.Constraint("Vertical", 0, 2, 2, 2),
    Sketcher.Constraint("Vertical", 3, 2, 5, 2),
    Sketcher.Constraint("Angle", 1, Q("-120 deg")),
    Sketcher.Constraint("DistanceY", 2, 2, 0, 2, Q("7 mm")),
    Sketcher.Constraint("DistanceX", 0, 2, 0, 1, Q("4.041452 mm")),
    Sketcher.Constraint("DistanceX", 1, 2, -1, 1, Q("12.396091 mm")),
    Sketcher.Constraint("DistanceY", -1, 1, 0, 2, Q("33.155588 mm")),
])
pad11 = body8.newObject("PartDesign::Pad", "Pad010")
pad11.Profile = sketch11
pad11.Length = 2.8

sketch12 = body8.newObject("Sketcher::SketchObject", "Sketch011")
sketch12.AttachmentSupport = (doc.getObject("YZ_Plane007"), [""])
sketch12.MapMode = "FlatFace"
sketch12.AttachmentOffset = App.Placement(V(0, 0, 35), App.Rotation())
sketch12.addGeometry(Part.Circle(V(-8.4, 29.7, 0), V(0, 0, 1), 2), False)
sketch12.addConstraint([
    Sketcher.Constraint("Diameter", 0, Q("4 mm")),
    Sketcher.Constraint("DistanceX", 0, 3, -1, 1, Q("8.354639 mm")),
    Sketcher.Constraint("DistanceY", -1, 1, 0, 3, Q("29.655588 mm")),
])
pad12 = body8.newObject("PartDesign::Pad", "Pad011")
pad12.Profile = sketch12
pad12.Length = 30
pad12.Reversed = True
doc.recompute()

fillet8 = body8.newObject("PartDesign::Fillet", "Fillet007")
fillet8.Base = (pad12, edges_at(pad12, [
    (37.8, -5.324, 31.406),
    (37.8, -8.355, 33.156),
    (37.8, -11.386, 31.406),
    (37.8, -11.386, 27.906),
    (37.8, -8.355, 26.156),
    (37.8, -5.324, 27.906),
]))
fillet8.Radius = 0.3
body9 = doc.addObject("PartDesign::Body", "Body008")

sketch13 = body9.newObject("Sketcher::SketchObject", "Sketch012")
sketch13.AttachmentSupport = (doc.getObject("YZ_Plane008"), [""])
sketch13.MapMode = "FlatFace"
sketch13.AttachmentOffset = App.Placement(V(0, 0, 35), App.Rotation())
sketch13.addGeometry([
    Part.Circle(V(-28.4, 14.7, 0), V(0, 0, 1), 4.2),
    Part.LineSegment(V(-30.4, 15.8, 0), V(-28.4, 17, 0)),
    Part.LineSegment(V(-28.4, 17, 0), V(-26.4, 15.8, 0)),
    Part.LineSegment(V(-26.4, 15.8, 0), V(-26.4, 13.5, 0)),
    Part.LineSegment(V(-26.4, 13.5, 0), V(-28.4, 12.3, 0)),
    Part.LineSegment(V(-28.4, 12.3, 0), V(-30.4, 13.5, 0)),
    Part.LineSegment(V(-30.4, 13.5, 0), V(-30.4, 15.8, 0)),
], False)
sketch13.addConstraint([
    Sketcher.Constraint("Coincident", 1, 2, 2, 1),
    Sketcher.Constraint("Coincident", 2, 2, 3, 1),
    Sketcher.Constraint("Coincident", 3, 2, 4, 1),
    Sketcher.Constraint("Coincident", 4, 2, 5, 1),
    Sketcher.Constraint("Coincident", 5, 2, 6, 1),
    Sketcher.Constraint("Coincident", 6, 2, 1, 1),
    Sketcher.Constraint("Vertical", 3),
    Sketcher.Constraint("Vertical", 6),
    Sketcher.Constraint("Parallel", 1, 4),
    Sketcher.Constraint("Parallel", 2, 5),
    Sketcher.Constraint("Horizontal", 3, 2, 5, 2),
    Sketcher.Constraint("Horizontal", 2, 2, 6, 2),
    Sketcher.Constraint("Vertical", 0, 3, 1, 2),
    Sketcher.Constraint("Vertical", 1, 2, 4, 2),
    Sketcher.Constraint("Diameter", 0, Q("8.5 mm")),
    Sketcher.Constraint("Angle", 1, Q("30 deg")),
    Sketcher.Constraint("DistanceX", 1, 2, 2, 2, Q("2 mm")),
    Sketcher.Constraint("DistanceY", 3, 2, 3, 1, Q("2.309401 mm")),
    Sketcher.Constraint("DistanceY", 0, 3, 1, 2, Q("2.309401 mm")),
    Sketcher.Constraint("DistanceX", 0, 3, -1, 1, Q("28.354639 mm")),
    Sketcher.Constraint("DistanceY", -1, 1, 1, 2, Q("16.964989 mm")),
])
pad13 = body9.newObject("PartDesign::Pad", "Pad012")
pad13.Profile = sketch13
pad13.Length = 5

sketch14 = body9.newObject("Sketcher::SketchObject", "Sketch013")
sketch14.AttachmentSupport = (doc.getObject("YZ_Plane008"), [""])
sketch14.MapMode = "FlatFace"
sketch14.AttachmentOffset = App.Placement(V(0, 0, 35), App.Rotation())
sketch14.addGeometry(Part.Circle(V(-28.4, 14.7, 0), V(0, 0, 1), 2.5), False)
sketch14.addConstraint([
    Sketcher.Constraint("Diameter", 0, Q("5 mm")),
    Sketcher.Constraint("DistanceX", 0, 3, -1, 1, Q("28.354639 mm")),
    Sketcher.Constraint("DistanceY", -1, 1, 0, 3, Q("14.655588 mm")),
])
pad14 = body9.newObject("PartDesign::Pad", "Pad013")
pad14.Profile = sketch14
pad14.Length = 20
pad14.Reversed = True
doc.recompute()

fillet9 = body9.newObject("PartDesign::Fillet", "Fillet008")
fillet9.Base = (pad14, edges_at(pad14, [
    (40, -32.605, 14.656),
    (40, -29.355, 16.388),
    (40, -27.355, 16.388),
    (40, -26.355, 14.656),
    (40, -27.355, 12.924),
    (40, -29.355, 12.924),
    (40, -30.355, 14.656),
]))
fillet9.Radius = 0.3
body10 = doc.addObject("PartDesign::Body", "Body009")

sketch15 = body10.newObject("Sketcher::SketchObject", "Sketch014")
sketch15.AttachmentSupport = (doc.getObject("YZ_Plane009"), [""])
sketch15.MapMode = "FlatFace"
sketch15.AttachmentOffset = App.Placement(V(0, 0, 35), App.Rotation())
sketch15.addGeometry(Part.Circle(V(-48.4, 39.7, 0), V(0, 0, 1), 1.5), False)
sketch15.addConstraint([
    Sketcher.Constraint("Diameter", 0, Q("3 mm")),
    Sketcher.Constraint("DistanceX", 0, 3, -1, 1, Q("48.354639 mm")),
    Sketcher.Constraint("DistanceY", -1, 1, 0, 3, Q("39.655588 mm")),
])
pad15 = body10.newObject("PartDesign::Pad", "Pad014")
pad15.Profile = sketch15
pad15.Length = 12
pad15.Reversed = True

sketch16 = body10.newObject("Sketcher::SketchObject", "Sketch015")
sketch16.AttachmentSupport = (doc.getObject("YZ_Plane009"), [""])
sketch16.MapMode = "FlatFace"
sketch16.AttachmentOffset = App.Placement(V(0, 0, 35), App.Rotation())
sketch16.addGeometry([
    Part.Circle(V(-48.4, 39.7, 0), V(0, 0, 1), 2.5),
    Part.LineSegment(V(-49.4, 40.2, 0), V(-48.4, 40.8, 0)),
    Part.LineSegment(V(-48.4, 40.8, 0), V(-47.4, 40.2, 0)),
    Part.LineSegment(V(-47.4, 40.2, 0), V(-47.4, 39.1, 0)),
    Part.LineSegment(V(-47.4, 39.1, 0), V(-48.4, 38.5, 0)),
    Part.LineSegment(V(-48.4, 38.5, 0), V(-49.4, 39.1, 0)),
    Part.LineSegment(V(-49.4, 39.1, 0), V(-49.4, 40.2, 0)),
], False)
sketch16.addConstraint([
    Sketcher.Constraint("Coincident", 1, 2, 2, 1),
    Sketcher.Constraint("Coincident", 2, 2, 3, 1),
    Sketcher.Constraint("Coincident", 3, 2, 4, 1),
    Sketcher.Constraint("Coincident", 4, 2, 5, 1),
    Sketcher.Constraint("Coincident", 5, 2, 6, 1),
    Sketcher.Constraint("Coincident", 6, 2, 1, 1),
    Sketcher.Constraint("Vertical", 3),
    Sketcher.Constraint("Vertical", 6),
    Sketcher.Constraint("Parallel", 1, 4),
    Sketcher.Constraint("Parallel", 2, 5),
    Sketcher.Constraint("Horizontal", 3, 2, 5, 2),
    Sketcher.Constraint("Horizontal", 2, 2, 6, 2),
    Sketcher.Constraint("Vertical", 0, 3, 1, 2),
    Sketcher.Constraint("Vertical", 1, 2, 4, 2),
    Sketcher.Constraint("Diameter", 0, Q("5 mm")),
    Sketcher.Constraint("Angle", 1, Q("30 deg")),
    Sketcher.Constraint("DistanceX", 1, 2, 2, 2, Q("1 mm")),
    Sketcher.Constraint("DistanceY", 3, 2, 3, 1, Q("1.154701 mm")),
    Sketcher.Constraint("DistanceY", 0, 3, 1, 2, Q("1.154701 mm")),
    Sketcher.Constraint("DistanceX", 0, 3, -1, 1, Q("48.354639 mm")),
    Sketcher.Constraint("DistanceY", -1, 1, 1, 2, Q("40.810288 mm")),
])
pad16 = body10.newObject("PartDesign::Pad", "Pad015")
pad16.Profile = sketch16
pad16.Length = 2.75
doc.recompute()

fillet10 = body10.newObject("PartDesign::Fillet", "Fillet009")
fillet10.Base = (pad16, edges_at(pad16, [
    (37.75, -49.355, 39.656),
    (37.75, -48.855, 40.522),
    (37.75, -47.855, 40.522),
    (37.75, -47.355, 39.656),
    (37.75, -47.855, 38.79),
    (37.75, -48.855, 38.79),
    (37.75, -50.855, 39.656),
]))
fillet10.Radius = 0.3
body11 = doc.addObject("PartDesign::Body", "Body010")

sketch17 = body11.newObject("Sketcher::SketchObject", "Sketch016")
sketch17.AttachmentSupport = (doc.getObject("YZ_Plane010"), [""])
sketch17.MapMode = "FlatFace"
sketch17.AttachmentOffset = App.Placement(V(0, 0, 35), App.Rotation())
sketch17.addGeometry(Part.Circle(V(-48.4, -5.3, 0), V(0, 0, 1), 3), False)
sketch17.addConstraint([
    Sketcher.Constraint("Diameter", 0, Q("6 mm")),
    Sketcher.Constraint("DistanceX", 0, 3, -1, 1, Q("48.354639 mm")),
    Sketcher.Constraint("DistanceY", 0, 3, -1, 1, Q("5.344412 mm")),
])
pad17 = body11.newObject("PartDesign::Pad", "Pad016")
pad17.Profile = sketch17
pad17.Length = 10
pad17.Reversed = True

sketch18 = body11.newObject("Sketcher::SketchObject", "Sketch017")
sketch18.AttachmentSupport = (doc.getObject("YZ_Plane010"), [""])
sketch18.MapMode = "FlatFace"
sketch18.AttachmentOffset = App.Placement(V(0, 0, 35), App.Rotation())
sketch18.addGeometry([
    Part.Circle(V(-48.4, -5.3, 0), V(0, 0, 1), 5),
    Part.LineSegment(V(-50.9, -3.9, 0), V(-48.4, -2.5, 0)),
    Part.LineSegment(V(-48.4, -2.5, 0), V(-45.9, -3.9, 0)),
    Part.LineSegment(V(-45.9, -3.9, 0), V(-45.9, -6.8, 0)),
    Part.LineSegment(V(-45.9, -6.8, 0), V(-48.4, -8.2, 0)),
    Part.LineSegment(V(-48.4, -8.2, 0), V(-50.9, -6.8, 0)),
    Part.LineSegment(V(-50.9, -6.8, 0), V(-50.9, -3.9, 0)),
], False)
sketch18.addConstraint([
    Sketcher.Constraint("Coincident", 1, 2, 2, 1),
    Sketcher.Constraint("Coincident", 2, 2, 3, 1),
    Sketcher.Constraint("Coincident", 3, 2, 4, 1),
    Sketcher.Constraint("Coincident", 4, 2, 5, 1),
    Sketcher.Constraint("Coincident", 5, 2, 6, 1),
    Sketcher.Constraint("Coincident", 6, 2, 1, 1),
    Sketcher.Constraint("Vertical", 3),
    Sketcher.Constraint("Vertical", 6),
    Sketcher.Constraint("Parallel", 1, 4),
    Sketcher.Constraint("Parallel", 2, 5),
    Sketcher.Constraint("Horizontal", 3, 2, 5, 2),
    Sketcher.Constraint("Horizontal", 2, 2, 6, 2),
    Sketcher.Constraint("Vertical", 0, 3, 1, 2),
    Sketcher.Constraint("Vertical", 1, 2, 4, 2),
    Sketcher.Constraint("Diameter", 0, Q("9.95 mm")),
    Sketcher.Constraint("Angle", 1, Q("30 deg")),
    Sketcher.Constraint("DistanceX", 5, 2, 3, 2, Q("5 mm")),
    Sketcher.Constraint("DistanceY", 3, 2, 3, 1, Q("2.886751 mm")),
    Sketcher.Constraint("DistanceX", 0, 3, -1, 1, Q("48.354639 mm")),
    Sketcher.Constraint("DistanceY", 1, 2, -1, 1, Q("2.457661 mm")),
    Sketcher.Constraint("DistanceY", 0, 3, 1, 2, Q("2.886751 mm")),
])
pad18 = body11.newObject("PartDesign::Pad", "Pad017")
pad18.Profile = sketch18
pad18.Length = 6
doc.recompute()

fillet11 = body11.newObject("PartDesign::Fillet", "Fillet010")
fillet11.Base = (pad18, edges_at(pad18, [
    (41, -49.605, -3.179),
    (41, -47.105, -3.179),
    (41, -45.855, -5.344),
    (41, -47.105, -7.509),
    (41, -49.605, -7.509),
    (41, -50.855, -5.344),
    (41, -53.33, -5.344),
]))
fillet11.Radius = 0.3
body12 = doc.addObject("PartDesign::Body", "Body011")

sketch19 = body12.newObject("Sketcher::SketchObject", "Sketch018")
sketch19.AttachmentSupport = (doc.getObject("YZ_Plane011"), [""])
sketch19.MapMode = "FlatFace"
sketch19.AttachmentOffset = App.Placement(V(0, 0, 35), App.Rotation())
sketch19.addGeometry(Part.Circle(V(-68.4, 39.7, 0), V(0, 0, 1), 1.5), False)
sketch19.addConstraint([
    Sketcher.Constraint("Diameter", 0, Q("3 mm")),
    Sketcher.Constraint("DistanceX", 0, 3, -1, 1, Q("68.354639 mm")),
    Sketcher.Constraint("DistanceY", -1, 1, 0, 3, Q("39.655588 mm")),
])
pad19 = body12.newObject("PartDesign::Pad", "Pad018")
pad19.Profile = sketch19
pad19.Length = 6
pad19.Reversed = True

sketch20 = body12.newObject("Sketcher::SketchObject", "Sketch019")
sketch20.AttachmentSupport = (doc.getObject("YZ_Plane011"), [""])
sketch20.MapMode = "FlatFace"
sketch20.AttachmentOffset = App.Placement(V(0, 0, 35), App.Rotation())
sketch20.addGeometry([
    Part.Circle(V(-68.4, 39.7, 0), V(0, 0, 1), 2.5),
    Part.LineSegment(V(-69.4, 40.2, 0), V(-68.4, 40.8, 0)),
    Part.LineSegment(V(-68.4, 40.8, 0), V(-67.4, 40.2, 0)),
    Part.LineSegment(V(-67.4, 40.2, 0), V(-67.4, 39.1, 0)),
    Part.LineSegment(V(-67.4, 39.1, 0), V(-68.4, 38.5, 0)),
    Part.LineSegment(V(-68.4, 38.5, 0), V(-69.4, 39.1, 0)),
    Part.LineSegment(V(-69.4, 39.1, 0), V(-69.4, 40.2, 0)),
], False)
sketch20.addConstraint([
    Sketcher.Constraint("Coincident", 1, 2, 2, 1),
    Sketcher.Constraint("Coincident", 2, 2, 3, 1),
    Sketcher.Constraint("Coincident", 3, 2, 4, 1),
    Sketcher.Constraint("Coincident", 4, 2, 5, 1),
    Sketcher.Constraint("Coincident", 5, 2, 6, 1),
    Sketcher.Constraint("Coincident", 6, 2, 1, 1),
    Sketcher.Constraint("Vertical", 3),
    Sketcher.Constraint("Vertical", 6),
    Sketcher.Constraint("Parallel", 1, 4),
    Sketcher.Constraint("Parallel", 2, 5),
    Sketcher.Constraint("Horizontal", 3, 2, 5, 2),
    Sketcher.Constraint("Horizontal", 2, 2, 6, 2),
    Sketcher.Constraint("Vertical", 0, 3, 1, 2),
    Sketcher.Constraint("Vertical", 1, 2, 4, 2),
    Sketcher.Constraint("Diameter", 0, Q("5 mm")),
    Sketcher.Constraint("Angle", 1, Q("30 deg")),
    Sketcher.Constraint("DistanceX", 1, 2, 2, 2, Q("1 mm")),
    Sketcher.Constraint("DistanceY", 3, 2, 3, 1, Q("1.154701 mm")),
    Sketcher.Constraint("DistanceY", 0, 3, 1, 2, Q("1.154701 mm")),
    Sketcher.Constraint("DistanceX", 0, 3, -1, 1, Q("68.354639 mm")),
    Sketcher.Constraint("DistanceY", -1, 1, 1, 2, Q("40.810288 mm")),
])
pad20 = body12.newObject("PartDesign::Pad", "Pad019")
pad20.Profile = sketch20
pad20.Length = 2.75
doc.recompute()

fillet12 = body12.newObject("PartDesign::Fillet", "Fillet011")
fillet12.Base = (pad20, edges_at(pad20, [
    (37.75, -68.855, 40.522),
    (37.75, -67.855, 40.522),
    (37.75, -67.355, 39.656),
    (37.75, -67.855, 38.79),
    (37.75, -68.855, 38.79),
    (37.75, -69.355, 39.656),
    (37.75, -70.855, 39.656),
]))
fillet12.Radius = 0.3

doc.recompute()
